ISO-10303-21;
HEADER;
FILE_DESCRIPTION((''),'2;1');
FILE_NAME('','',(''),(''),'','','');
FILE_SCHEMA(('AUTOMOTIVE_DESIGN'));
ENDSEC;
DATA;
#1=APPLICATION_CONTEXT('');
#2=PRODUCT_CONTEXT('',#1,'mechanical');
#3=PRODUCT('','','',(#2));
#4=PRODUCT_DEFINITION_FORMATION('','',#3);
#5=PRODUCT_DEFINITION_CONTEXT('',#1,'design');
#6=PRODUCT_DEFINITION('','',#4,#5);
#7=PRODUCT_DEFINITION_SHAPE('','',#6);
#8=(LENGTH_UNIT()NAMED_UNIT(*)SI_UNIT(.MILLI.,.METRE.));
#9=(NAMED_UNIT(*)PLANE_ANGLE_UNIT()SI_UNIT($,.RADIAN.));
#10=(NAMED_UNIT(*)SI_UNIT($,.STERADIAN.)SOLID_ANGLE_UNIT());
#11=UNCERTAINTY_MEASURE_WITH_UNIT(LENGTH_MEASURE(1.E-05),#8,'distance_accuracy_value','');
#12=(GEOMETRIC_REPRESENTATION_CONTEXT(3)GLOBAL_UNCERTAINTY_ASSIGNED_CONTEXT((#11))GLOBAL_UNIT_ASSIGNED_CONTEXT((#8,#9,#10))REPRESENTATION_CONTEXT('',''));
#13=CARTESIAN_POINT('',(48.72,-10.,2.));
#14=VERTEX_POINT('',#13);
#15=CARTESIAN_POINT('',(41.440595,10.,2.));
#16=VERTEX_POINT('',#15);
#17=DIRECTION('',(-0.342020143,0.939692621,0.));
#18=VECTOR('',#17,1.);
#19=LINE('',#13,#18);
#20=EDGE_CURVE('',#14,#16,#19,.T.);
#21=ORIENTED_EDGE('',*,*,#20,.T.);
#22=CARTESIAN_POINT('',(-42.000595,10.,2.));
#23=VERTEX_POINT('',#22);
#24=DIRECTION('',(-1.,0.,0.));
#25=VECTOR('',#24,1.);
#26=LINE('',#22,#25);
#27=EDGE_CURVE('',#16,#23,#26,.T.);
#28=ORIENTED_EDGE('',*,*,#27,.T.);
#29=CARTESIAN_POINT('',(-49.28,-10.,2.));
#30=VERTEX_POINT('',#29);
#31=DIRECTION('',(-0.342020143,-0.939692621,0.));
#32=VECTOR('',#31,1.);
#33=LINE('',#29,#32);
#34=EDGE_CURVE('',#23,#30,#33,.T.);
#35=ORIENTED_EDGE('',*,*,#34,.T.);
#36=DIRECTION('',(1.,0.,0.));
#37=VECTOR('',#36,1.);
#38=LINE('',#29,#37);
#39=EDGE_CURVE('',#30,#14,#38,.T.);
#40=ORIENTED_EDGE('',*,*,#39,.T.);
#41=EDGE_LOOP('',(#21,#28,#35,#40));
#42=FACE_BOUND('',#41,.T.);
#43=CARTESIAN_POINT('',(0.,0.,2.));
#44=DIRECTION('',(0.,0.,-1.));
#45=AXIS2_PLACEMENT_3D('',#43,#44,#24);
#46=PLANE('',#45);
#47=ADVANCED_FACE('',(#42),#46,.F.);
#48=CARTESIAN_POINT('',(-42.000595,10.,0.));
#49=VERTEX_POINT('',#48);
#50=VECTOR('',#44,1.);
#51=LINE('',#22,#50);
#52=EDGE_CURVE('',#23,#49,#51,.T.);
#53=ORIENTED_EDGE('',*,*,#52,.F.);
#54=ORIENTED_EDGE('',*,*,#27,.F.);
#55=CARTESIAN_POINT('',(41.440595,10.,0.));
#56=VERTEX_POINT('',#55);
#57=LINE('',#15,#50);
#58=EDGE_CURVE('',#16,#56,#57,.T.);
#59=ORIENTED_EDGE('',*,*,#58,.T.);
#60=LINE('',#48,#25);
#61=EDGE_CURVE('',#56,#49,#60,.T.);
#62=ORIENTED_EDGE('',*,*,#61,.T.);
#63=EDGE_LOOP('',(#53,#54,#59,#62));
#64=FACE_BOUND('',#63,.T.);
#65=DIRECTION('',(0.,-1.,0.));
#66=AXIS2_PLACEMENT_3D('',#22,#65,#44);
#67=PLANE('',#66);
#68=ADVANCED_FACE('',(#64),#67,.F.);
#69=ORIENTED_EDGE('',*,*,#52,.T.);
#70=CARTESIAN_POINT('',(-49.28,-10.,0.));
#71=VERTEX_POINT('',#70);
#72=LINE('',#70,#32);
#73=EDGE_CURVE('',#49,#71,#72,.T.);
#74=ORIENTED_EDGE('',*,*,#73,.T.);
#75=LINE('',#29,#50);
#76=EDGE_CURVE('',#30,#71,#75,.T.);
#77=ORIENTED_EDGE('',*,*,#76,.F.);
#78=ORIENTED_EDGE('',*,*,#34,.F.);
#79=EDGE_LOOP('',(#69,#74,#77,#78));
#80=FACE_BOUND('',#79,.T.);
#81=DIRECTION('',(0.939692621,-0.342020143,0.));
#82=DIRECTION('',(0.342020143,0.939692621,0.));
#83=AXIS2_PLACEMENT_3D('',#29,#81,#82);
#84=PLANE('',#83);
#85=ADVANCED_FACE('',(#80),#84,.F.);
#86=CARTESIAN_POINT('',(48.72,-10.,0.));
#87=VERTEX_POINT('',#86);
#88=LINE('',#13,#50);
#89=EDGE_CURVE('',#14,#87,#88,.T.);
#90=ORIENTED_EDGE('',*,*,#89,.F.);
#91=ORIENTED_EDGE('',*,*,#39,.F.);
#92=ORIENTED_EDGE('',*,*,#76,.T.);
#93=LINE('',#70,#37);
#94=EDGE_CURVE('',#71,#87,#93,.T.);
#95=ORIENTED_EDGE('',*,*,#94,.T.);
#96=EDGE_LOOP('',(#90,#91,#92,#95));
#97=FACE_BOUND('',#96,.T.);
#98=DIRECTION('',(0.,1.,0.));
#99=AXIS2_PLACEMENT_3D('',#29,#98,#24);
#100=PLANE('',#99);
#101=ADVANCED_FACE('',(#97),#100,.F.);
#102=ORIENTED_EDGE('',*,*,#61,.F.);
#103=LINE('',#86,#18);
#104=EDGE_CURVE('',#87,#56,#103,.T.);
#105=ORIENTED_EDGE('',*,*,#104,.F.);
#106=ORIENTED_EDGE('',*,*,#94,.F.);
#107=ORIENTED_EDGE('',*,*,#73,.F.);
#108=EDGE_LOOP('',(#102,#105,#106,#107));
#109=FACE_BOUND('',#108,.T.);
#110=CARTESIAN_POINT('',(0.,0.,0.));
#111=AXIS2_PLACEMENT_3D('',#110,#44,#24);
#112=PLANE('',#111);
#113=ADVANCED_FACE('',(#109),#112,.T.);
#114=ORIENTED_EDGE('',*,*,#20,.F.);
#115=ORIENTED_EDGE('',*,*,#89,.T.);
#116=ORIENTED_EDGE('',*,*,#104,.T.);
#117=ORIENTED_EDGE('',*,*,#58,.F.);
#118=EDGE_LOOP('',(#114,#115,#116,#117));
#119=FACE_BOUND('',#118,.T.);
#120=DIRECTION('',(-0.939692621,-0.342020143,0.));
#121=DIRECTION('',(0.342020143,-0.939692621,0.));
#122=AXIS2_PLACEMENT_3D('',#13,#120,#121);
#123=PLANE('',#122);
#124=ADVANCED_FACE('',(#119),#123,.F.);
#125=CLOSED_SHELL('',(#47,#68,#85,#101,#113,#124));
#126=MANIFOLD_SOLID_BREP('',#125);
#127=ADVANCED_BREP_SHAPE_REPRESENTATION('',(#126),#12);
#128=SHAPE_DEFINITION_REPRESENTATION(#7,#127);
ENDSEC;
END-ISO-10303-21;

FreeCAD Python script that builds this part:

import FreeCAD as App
import Part
import Sketcher
Q = App.Units.Quantity

doc = App.newDocument("Part")
params = doc.addObject("Spreadsheet::Sheet", "Params")
for row, (alias, value) in enumerate([
    ("sketch1_width", "98 mm"),
    ("pad1_length", "2 mm"),
], start=1):
    params.set(f"A{row}", alias)
    params.set(f"B{row}", "=" + value)
    params.setAlias(f"B{row}", alias)

body = doc.addObject("PartDesign::Body", "Body")

sketch1 = body.newObject("Sketcher::SketchObject", "Sketch")
sketch1.AttachmentSupport = (doc.getObject("XY_Plane"), [""])
sketch1.MapMode = "FlatFace"
sketch1.addGeometry(Part.LineSegment(App.Vector(-49.28, -10, 0), App.Vector(48.72, -10, 0)), False)
sketch1.addGeometry(Part.LineSegment(App.Vector(48.72, -10, 0), App.Vector(41.440595, 10, 0)), False)
sketch1.addGeometry(Part.LineSegment(App.Vector(41.440595, 10, 0), App.Vector(-42.000595, 10, 0)), False)
sketch1.addGeometry(Part.LineSegment(App.Vector(-42.000595, 10, 0), App.Vector(-49.28, -10, 0)), False)
sketch1.addConstraint(Sketcher.Constraint("Coincident", 0, 2, 1, 1))
sketch1.addConstraint(Sketcher.Constraint("Coincident", 1, 2, 2, 1))
sketch1.addConstraint(Sketcher.Constraint("Coincident", 2, 2, 3, 1))
sketch1.addConstraint(Sketcher.Constraint("Coincident", 3, 2, 0, 1))
sketch1.addConstraint(Sketcher.Constraint("Horizontal", 0))
sketch1.addConstraint(Sketcher.Constraint("Horizontal", 2))
sketch1.addConstraint(Sketcher.Constraint("Equal", 1, 3))
sketch1.addConstraint(Sketcher.Constraint("DistanceX", 0, 1, 0, 2, Q("98 mm")))
sketch1.addConstraint(Sketcher.Constraint("Angle", 1, Q("110 deg")))
sketch1.addConstraint(Sketcher.Constraint("DistanceY", 0, 2, -1, 1, Q("10 mm")))
sketch1.addConstraint(Sketcher.Constraint("DistanceY", -1, 1, 1, 2, Q("10 mm")))
sketch1.addConstraint(Sketcher.Constraint("DistanceX", -1, 1, 0, 2, Q("48.72 mm")))
sketch1.setExpression("Constraints[7]", "Params.sketch1_width")
pad1 = body.newObject("PartDesign::Pad", "Pad")
pad1.Profile = sketch1
pad1.setExpression("Length", "Params.pad1_length")

doc.recompute()
